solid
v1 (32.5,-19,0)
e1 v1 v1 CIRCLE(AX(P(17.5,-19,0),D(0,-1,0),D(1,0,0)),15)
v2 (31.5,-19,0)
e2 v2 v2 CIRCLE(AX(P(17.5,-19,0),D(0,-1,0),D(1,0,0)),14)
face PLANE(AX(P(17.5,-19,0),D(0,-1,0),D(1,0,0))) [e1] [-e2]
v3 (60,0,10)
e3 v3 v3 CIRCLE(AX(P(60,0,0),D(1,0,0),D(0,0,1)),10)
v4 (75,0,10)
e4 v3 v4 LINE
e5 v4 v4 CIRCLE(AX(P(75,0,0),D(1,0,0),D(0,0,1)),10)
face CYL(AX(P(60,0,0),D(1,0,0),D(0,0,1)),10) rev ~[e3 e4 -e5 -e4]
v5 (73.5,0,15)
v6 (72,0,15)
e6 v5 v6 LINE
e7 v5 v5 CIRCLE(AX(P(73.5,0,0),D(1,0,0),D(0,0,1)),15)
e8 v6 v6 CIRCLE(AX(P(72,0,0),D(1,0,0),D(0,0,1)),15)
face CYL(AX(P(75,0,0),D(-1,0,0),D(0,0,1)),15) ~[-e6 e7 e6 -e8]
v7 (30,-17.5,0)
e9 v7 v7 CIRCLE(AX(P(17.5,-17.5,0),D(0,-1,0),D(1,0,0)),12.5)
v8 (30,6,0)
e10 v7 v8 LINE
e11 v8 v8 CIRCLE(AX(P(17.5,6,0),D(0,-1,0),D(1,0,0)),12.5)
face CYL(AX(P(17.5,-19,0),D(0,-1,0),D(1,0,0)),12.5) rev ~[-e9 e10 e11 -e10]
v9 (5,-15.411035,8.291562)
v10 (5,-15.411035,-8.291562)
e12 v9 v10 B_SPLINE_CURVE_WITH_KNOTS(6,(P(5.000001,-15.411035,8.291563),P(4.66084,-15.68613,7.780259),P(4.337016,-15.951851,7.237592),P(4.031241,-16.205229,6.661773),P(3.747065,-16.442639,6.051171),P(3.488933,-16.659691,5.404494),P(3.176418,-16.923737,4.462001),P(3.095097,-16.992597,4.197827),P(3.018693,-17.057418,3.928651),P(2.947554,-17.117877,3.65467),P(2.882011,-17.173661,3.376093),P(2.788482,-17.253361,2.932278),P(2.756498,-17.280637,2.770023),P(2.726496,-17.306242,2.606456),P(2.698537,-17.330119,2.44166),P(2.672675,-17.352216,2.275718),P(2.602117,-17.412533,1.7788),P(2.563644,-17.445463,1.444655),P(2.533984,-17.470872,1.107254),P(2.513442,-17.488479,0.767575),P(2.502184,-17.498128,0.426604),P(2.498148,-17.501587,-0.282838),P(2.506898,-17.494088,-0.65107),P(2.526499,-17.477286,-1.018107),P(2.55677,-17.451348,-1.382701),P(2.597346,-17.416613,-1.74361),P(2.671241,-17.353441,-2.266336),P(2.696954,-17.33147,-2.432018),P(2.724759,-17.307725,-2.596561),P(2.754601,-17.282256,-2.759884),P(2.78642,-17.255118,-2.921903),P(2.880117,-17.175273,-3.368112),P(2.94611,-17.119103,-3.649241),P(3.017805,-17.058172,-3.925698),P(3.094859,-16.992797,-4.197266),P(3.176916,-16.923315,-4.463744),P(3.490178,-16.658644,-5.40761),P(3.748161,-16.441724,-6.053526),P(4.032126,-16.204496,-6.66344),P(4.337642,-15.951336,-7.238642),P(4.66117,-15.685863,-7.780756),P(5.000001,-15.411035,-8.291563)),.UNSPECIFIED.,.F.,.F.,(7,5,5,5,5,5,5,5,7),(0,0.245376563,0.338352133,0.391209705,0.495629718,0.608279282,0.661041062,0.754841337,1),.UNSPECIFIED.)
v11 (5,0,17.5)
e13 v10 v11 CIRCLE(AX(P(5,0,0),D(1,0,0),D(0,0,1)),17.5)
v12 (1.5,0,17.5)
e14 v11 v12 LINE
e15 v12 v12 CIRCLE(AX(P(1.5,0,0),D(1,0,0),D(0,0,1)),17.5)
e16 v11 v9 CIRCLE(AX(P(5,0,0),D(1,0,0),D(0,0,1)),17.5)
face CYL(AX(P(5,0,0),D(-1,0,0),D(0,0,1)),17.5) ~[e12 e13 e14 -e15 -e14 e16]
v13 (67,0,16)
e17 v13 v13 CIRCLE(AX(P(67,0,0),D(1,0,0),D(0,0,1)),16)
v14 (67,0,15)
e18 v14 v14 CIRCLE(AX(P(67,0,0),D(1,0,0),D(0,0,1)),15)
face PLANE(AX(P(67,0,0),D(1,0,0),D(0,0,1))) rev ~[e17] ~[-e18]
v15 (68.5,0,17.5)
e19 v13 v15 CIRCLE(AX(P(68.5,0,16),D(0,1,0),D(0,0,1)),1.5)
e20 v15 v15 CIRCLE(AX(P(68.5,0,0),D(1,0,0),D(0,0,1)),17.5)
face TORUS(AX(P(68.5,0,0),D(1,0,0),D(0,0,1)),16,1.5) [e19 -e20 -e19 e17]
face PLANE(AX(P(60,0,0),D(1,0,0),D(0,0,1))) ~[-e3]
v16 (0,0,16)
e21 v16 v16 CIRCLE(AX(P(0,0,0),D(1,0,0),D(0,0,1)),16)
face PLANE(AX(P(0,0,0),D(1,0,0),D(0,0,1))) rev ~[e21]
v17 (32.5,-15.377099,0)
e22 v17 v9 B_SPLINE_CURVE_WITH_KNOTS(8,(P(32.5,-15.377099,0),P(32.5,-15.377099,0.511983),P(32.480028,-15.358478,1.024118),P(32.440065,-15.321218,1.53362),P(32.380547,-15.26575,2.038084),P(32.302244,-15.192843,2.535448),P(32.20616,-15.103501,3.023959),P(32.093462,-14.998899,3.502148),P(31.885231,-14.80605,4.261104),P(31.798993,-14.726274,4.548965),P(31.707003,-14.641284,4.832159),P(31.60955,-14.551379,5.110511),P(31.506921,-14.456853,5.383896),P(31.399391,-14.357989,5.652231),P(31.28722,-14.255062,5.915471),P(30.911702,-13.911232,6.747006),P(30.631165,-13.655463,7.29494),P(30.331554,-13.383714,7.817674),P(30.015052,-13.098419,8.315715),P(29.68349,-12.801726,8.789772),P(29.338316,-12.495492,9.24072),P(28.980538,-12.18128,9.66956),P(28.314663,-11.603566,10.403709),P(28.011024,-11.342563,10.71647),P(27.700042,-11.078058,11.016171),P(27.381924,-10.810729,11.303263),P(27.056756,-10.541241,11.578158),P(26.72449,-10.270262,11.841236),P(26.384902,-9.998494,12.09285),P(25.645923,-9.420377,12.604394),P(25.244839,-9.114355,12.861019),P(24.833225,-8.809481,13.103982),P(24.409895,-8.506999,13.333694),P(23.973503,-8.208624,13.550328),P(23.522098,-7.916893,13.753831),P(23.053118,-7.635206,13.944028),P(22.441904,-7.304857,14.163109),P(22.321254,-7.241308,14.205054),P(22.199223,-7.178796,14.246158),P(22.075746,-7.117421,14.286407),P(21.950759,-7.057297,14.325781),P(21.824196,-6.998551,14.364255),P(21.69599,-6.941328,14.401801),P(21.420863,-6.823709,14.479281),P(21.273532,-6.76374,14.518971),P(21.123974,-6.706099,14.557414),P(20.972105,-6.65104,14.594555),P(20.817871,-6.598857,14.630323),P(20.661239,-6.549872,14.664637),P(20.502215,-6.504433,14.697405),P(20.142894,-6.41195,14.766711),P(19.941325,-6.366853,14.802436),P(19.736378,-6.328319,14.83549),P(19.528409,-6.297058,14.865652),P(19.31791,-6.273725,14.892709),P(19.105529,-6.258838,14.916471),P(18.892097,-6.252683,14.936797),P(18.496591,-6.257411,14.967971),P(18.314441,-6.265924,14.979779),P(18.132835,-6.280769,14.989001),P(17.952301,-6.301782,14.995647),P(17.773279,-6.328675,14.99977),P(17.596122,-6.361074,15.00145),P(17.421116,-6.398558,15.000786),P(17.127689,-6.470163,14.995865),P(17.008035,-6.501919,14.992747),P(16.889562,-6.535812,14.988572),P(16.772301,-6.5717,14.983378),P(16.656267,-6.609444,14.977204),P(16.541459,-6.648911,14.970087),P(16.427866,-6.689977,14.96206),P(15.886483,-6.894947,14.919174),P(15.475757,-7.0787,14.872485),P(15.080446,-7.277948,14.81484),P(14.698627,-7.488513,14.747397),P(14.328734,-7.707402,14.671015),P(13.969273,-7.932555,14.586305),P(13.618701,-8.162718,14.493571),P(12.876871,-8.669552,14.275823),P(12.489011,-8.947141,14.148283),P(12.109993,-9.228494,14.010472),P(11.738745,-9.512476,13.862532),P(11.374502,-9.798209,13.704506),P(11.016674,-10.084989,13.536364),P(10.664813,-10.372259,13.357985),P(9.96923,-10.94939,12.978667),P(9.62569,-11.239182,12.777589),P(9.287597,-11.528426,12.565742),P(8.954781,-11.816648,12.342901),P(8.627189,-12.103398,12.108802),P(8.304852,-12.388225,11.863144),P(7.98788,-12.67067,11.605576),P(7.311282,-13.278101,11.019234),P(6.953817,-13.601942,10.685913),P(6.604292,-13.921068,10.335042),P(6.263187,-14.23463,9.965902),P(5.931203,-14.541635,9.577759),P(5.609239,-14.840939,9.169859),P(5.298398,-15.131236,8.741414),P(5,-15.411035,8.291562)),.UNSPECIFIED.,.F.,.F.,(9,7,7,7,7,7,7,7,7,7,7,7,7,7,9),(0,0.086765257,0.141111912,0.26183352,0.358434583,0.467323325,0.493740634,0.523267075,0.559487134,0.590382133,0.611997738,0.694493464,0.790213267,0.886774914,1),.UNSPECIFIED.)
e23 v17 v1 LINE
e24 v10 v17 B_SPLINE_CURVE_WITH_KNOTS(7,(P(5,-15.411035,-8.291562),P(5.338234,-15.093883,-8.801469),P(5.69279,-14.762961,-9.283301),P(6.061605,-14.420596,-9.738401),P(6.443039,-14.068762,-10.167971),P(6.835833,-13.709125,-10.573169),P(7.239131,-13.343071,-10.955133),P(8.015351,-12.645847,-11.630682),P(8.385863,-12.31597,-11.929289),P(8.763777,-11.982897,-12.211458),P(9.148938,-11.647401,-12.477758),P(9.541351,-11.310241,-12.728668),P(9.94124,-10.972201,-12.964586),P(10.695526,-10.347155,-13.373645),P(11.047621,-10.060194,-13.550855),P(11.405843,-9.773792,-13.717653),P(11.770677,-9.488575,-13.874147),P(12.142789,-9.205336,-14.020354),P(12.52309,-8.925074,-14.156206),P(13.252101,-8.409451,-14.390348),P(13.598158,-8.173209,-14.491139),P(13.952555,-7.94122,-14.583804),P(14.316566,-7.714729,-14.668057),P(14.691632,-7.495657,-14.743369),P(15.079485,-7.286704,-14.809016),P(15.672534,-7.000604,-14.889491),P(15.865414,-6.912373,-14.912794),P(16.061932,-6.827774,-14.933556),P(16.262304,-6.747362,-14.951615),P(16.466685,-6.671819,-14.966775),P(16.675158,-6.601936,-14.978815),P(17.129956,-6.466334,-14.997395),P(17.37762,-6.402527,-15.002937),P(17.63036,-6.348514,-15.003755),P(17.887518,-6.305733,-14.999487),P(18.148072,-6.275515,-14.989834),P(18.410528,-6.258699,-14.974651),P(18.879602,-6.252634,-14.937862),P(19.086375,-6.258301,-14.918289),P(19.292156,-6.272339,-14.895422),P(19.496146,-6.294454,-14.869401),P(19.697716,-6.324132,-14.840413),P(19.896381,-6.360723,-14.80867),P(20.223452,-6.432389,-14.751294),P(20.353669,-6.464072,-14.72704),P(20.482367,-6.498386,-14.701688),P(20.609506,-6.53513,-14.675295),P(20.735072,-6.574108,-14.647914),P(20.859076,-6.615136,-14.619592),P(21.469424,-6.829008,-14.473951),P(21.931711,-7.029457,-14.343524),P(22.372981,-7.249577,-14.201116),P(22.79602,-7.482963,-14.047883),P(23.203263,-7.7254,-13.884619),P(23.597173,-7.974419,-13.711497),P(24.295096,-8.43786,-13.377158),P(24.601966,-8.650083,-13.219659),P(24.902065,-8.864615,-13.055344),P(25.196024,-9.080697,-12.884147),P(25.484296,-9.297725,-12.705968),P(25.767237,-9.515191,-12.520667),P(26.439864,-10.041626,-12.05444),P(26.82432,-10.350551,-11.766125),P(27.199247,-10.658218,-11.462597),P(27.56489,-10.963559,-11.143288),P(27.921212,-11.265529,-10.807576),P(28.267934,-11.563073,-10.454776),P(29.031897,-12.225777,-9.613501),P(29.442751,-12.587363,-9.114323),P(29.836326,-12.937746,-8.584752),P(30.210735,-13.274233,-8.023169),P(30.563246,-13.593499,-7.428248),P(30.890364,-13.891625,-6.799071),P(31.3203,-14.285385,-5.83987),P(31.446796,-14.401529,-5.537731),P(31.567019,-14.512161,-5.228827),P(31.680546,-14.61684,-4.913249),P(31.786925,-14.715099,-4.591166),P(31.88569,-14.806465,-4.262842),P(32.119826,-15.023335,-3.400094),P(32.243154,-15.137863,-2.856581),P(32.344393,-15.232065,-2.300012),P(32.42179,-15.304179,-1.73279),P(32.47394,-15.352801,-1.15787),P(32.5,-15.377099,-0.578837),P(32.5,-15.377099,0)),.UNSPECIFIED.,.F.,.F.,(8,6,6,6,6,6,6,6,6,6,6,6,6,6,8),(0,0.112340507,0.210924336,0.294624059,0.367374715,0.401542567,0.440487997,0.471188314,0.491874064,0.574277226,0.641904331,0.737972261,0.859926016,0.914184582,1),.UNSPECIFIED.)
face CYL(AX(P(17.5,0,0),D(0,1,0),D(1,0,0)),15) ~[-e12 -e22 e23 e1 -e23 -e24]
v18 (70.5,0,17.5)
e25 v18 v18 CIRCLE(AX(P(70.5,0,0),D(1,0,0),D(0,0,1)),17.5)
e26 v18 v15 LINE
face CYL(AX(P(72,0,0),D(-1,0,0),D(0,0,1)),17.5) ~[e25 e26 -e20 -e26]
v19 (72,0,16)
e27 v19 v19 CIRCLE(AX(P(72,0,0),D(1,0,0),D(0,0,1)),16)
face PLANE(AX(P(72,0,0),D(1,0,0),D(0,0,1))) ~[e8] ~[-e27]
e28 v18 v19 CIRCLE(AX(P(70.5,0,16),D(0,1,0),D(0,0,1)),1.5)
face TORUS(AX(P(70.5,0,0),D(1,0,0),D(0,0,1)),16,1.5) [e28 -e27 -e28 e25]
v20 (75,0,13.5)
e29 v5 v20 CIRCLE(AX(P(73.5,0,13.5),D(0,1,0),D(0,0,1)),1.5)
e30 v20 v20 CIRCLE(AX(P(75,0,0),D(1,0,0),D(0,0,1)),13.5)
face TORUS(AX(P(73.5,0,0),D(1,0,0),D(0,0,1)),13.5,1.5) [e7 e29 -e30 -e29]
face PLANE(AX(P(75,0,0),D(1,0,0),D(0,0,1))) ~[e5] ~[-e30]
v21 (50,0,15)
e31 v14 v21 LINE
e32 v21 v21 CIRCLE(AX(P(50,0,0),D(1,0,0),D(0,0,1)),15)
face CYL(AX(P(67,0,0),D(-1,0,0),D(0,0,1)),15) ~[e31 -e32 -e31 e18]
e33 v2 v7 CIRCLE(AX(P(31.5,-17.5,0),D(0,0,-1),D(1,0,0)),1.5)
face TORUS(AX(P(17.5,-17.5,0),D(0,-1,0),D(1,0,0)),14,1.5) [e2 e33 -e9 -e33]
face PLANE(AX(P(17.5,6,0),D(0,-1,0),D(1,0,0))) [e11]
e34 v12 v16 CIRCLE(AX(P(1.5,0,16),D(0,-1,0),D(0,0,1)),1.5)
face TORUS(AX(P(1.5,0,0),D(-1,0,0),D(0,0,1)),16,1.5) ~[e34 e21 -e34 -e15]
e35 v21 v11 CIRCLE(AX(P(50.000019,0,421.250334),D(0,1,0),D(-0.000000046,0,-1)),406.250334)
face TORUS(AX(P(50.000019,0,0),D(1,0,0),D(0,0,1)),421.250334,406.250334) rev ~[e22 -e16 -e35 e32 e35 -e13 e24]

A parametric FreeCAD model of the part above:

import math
import FreeCAD as App
import Part
import Sketcher
from FreeCAD import Vector


def edges_at(feature, points):
    """Names of the edges that pass closest to the given points."""
    edges = feature.Shape.Edges
    near = lambda p: min(range(len(edges)), key=lambda i: edges[i].distToShape(Part.Vertex(*p))[0])
    return sorted({f"Edge{near(p) + 1}" for p in points})

doc = App.newDocument("Part")
body = doc.addObject("PartDesign::Body", "Body")

sketch1 = body.newObject("Sketcher::SketchObject", "Sketch")
sketch1.AttachmentSupport = (doc.getObject("XZ_Plane"), [""])
sketch1.MapMode = "FlatFace"
sketch1.addGeometry([
    Part.LineSegment(Vector(0, 17.5, 0), Vector(0, 0, 0)),
    Part.LineSegment(Vector(0, 0, 0), Vector(60, 0, 0)),
    Part.LineSegment(Vector(60, 0, 0), Vector(60, 10, 0)),
    Part.LineSegment(Vector(60, 10, 0), Vector(75, 10, 0)),
    Part.LineSegment(Vector(75, 10, 0), Vector(75, 15, 0)),
    Part.LineSegment(Vector(75, 15, 0), Vector(72, 15, 0)),
    Part.LineSegment(Vector(72, 15, 0), Vector(72, 17.5, 0)),
    Part.LineSegment(Vector(72, 17.5, 0), Vector(67, 17.5, 0)),
    Part.LineSegment(Vector(67, 17.5, 0), Vector(67, 15, 0)),
    Part.LineSegment(Vector(67, 15, 0), Vector(50, 15, 0)),
    Part.ArcOfCircle(Part.Circle(Vector(50.000019, 421.250334, 0), Vector(0, 0, 1), 406.250334), math.radians(-96.359658), math.radians(-90.000003)),
    Part.LineSegment(Vector(5, 17.5, 0), Vector(0, 17.5, 0)),
], False)
sketch1.addConstraint([
    Sketcher.Constraint("Coincident", 0, 2, 1, 1),
    Sketcher.Constraint("Coincident", 1, 2, 2, 1),
    Sketcher.Constraint("Coincident", 2, 2, 3, 1),
    Sketcher.Constraint("Coincident", 3, 2, 4, 1),
    Sketcher.Constraint("Coincident", 4, 2, 5, 1),
    Sketcher.Constraint("Coincident", 5, 2, 6, 1),
    Sketcher.Constraint("Coincident", 6, 2, 7, 1),
    Sketcher.Constraint("Coincident", 7, 2, 8, 1),
    Sketcher.Constraint("Coincident", 8, 2, 9, 1),
    Sketcher.Constraint("Tangent", 9, 2, 10, 2),
    Sketcher.Constraint("Coincident", 10, 1, 11, 1),
    Sketcher.Constraint("Coincident", 11, 2, 0, 1),
    Sketcher.Constraint("Vertical", 0),
    Sketcher.Constraint("Horizontal", 1),
    Sketcher.Constraint("Vertical", 2),
    Sketcher.Constraint("Horizontal", 3),
    Sketcher.Constraint("Vertical", 4),
    Sketcher.Constraint("Horizontal", 5),
    Sketcher.Constraint("Vertical", 6),
    Sketcher.Constraint("Horizontal", 7),
    Sketcher.Constraint("Vertical", 8),
    Sketcher.Constraint("Horizontal", 9),
    Sketcher.Constraint("Horizontal", 11),
    Sketcher.Constraint("Coincident", 0, 2, -1, 1),
    Sketcher.Constraint("Horizontal", 5, 2, 8, 2),
    Sketcher.Constraint("Horizontal", 7, 2, 10, 1),
    Sketcher.Constraint("Equal", 7, 11),
    Sketcher.Constraint("Equal", 11, 4),
    Sketcher.Constraint("DistanceX", 1, 1, 1, 2, 60.0),
    Sketcher.Constraint("DistanceX", 3, 1, 3, 2, 15.0),
    Sketcher.Constraint("DistanceX", 5, 2, 5, 1, 3.0),
    Sketcher.Constraint("DistanceX", 7, 2, 7, 1, 5.0),
    Sketcher.Constraint("DistanceX", 9, 2, 9, 1, 17.0),
    Sketcher.Constraint("DistanceY", 2, 1, 2, 2, 10.0),
    Sketcher.Constraint("DistanceY", 0, 2, 0, 1, 17.5),
])
revolution = body.newObject("PartDesign::Revolution", "Revolution")
revolution.Profile = sketch1
revolution.ReferenceAxis = (sketch1, ["H_Axis"])
revolution.Angle = 360

sketch2 = body.newObject("Sketcher::SketchObject", "Sketch001")
sketch2.AttachmentSupport = (doc.getObject("XZ_Plane"), [""])
sketch2.MapMode = "FlatFace"
sketch2.addGeometry(Part.Circle(Vector(18, 0, 0), Vector(0, 0, 1), 15), False)
sketch2.addConstraint([
    Sketcher.Constraint("PointOnObject", 0, 3, -1),
    Sketcher.Constraint("Diameter", 0, 30.0),
    Sketcher.Constraint("DistanceX", -1, 1, 0, 3, 17.5),
])
pad1 = body.newObject("PartDesign::Pad", "Pad")
pad1.Profile = sketch2
pad1.Length = 19

sketch3 = body.newObject("Sketcher::SketchObject", "Sketch002")
sketch3.AttachmentSupport = (doc.getObject("XZ_Plane"), [""])
sketch3.MapMode = "FlatFace"
sketch3.AttachmentOffset = App.Placement(Vector(0, 0, 19), App.Rotation())
sketch3.addGeometry(Part.Circle(Vector(18, 0, 0), Vector(0, 0, 1), 12), False)
sketch3.addConstraint([
    Sketcher.Constraint("PointOnObject", 0, 3, -1),
    Sketcher.Constraint("Diameter", 0, 25.0),
    Sketcher.Constraint("DistanceX", -1, 1, 0, 3, 17.5),
])
pocket1 = body.newObject("PartDesign::Pocket", "Pocket")
pocket1.Profile = sketch3
pocket1.Length = 25
doc.recompute()

fillet = body.newObject("PartDesign::Fillet", "Fillet")
fillet.Base = (pocket1, edges_at(pocket1, [
    (0, 0, -17.5),
    (5, -19, 0),
    (75, 0, -15),
    (72, 0, -17.5),
    (67, 0, -17.5),
]))
fillet.Radius = 1.5

doc.recompute()
